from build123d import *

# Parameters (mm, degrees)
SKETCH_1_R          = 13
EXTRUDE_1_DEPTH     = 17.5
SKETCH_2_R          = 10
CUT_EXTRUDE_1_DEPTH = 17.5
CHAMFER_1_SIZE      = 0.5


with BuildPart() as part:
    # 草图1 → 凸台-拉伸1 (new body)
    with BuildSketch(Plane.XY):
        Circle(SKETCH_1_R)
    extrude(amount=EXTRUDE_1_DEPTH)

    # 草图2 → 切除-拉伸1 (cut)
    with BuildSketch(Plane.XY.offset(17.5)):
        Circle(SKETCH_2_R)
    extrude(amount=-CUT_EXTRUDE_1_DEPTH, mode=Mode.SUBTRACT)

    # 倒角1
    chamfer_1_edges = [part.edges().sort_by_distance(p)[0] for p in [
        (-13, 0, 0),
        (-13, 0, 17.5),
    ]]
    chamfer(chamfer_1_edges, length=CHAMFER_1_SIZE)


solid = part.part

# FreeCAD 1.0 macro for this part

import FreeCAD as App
import Part
import Sketcher

V = App.Vector


def edges_at(feature, points):
    """Names of the edges that pass closest to the given points."""
    edges = feature.Shape.Edges
    near = lambda p: min(range(len(edges)), key=lambda i: edges[i].distToShape(Part.Vertex(*p))[0])
    return sorted({f"Edge{near(p) + 1}" for p in points})

doc = App.newDocument("Part")
params = doc.addObject("Spreadsheet::Sheet", "Params")
for row, (alias, value) in enumerate([
    ("sketch1_diameter", "26 mm"),
    ("pad1_length", "17.5 mm"),
    ("sketch2_diameter", "20 mm"),
    ("pocket1_length", "17.5 mm"),
    ("chamfer_size", "0.5 mm"),
], start=1):
    params.set(f"A{row}", alias)
    params.set(f"B{row}", "=" + value)
    params.setAlias(f"B{row}", alias)

body = doc.addObject("PartDesign::Body", "Body")

sketch1 = body.newObject("Sketcher::SketchObject", "Sketch")
sketch1.AttachmentSupport = (doc.getObject("XY_Plane"), [""])
sketch1.MapMode = "FlatFace"
sketch1.addGeometry(Part.Circle(V(0, 0, 0), V(0, 0, 1), 13), False)
sketch1.addConstraint([
    Sketcher.Constraint("Coincident", 0, 3, -1, 1),
    Sketcher.Constraint("Diameter", 0, 26.0),
])
sketch1.setExpression("Constraints[1]", "Params.sketch1_diameter")
pad1 = body.newObject("PartDesign::Pad", "Pad")
pad1.Profile = sketch1
pad1.setExpression("Length", "Params.pad1_length")

sketch2 = body.newObject("Sketcher::SketchObject", "Sketch001")
sketch2.AttachmentSupport = (doc.getObject("XY_Plane"), [""])
sketch2.MapMode = "FlatFace"
sketch2.AttachmentOffset = App.Placement(V(0, 0, 17.5), App.Rotation())
sketch2.addGeometry(Part.Circle(V(0, 0, 0), V(0, 0, 1), 10), False)
sketch2.addConstraint([
    Sketcher.Constraint("Coincident", 0, 3, -1, 1),
    Sketcher.Constraint("Diameter", 0, 20.0),
])
sketch2.setExpression("Constraints[1]", "Params.sketch2_diameter")
pocket1 = body.newObject("PartDesign::Pocket", "Pocket")
pocket1.Profile = sketch2
pocket1.setExpression("Length", "Params.pocket1_length")
doc.recompute()

chamfer = body.newObject("PartDesign::Chamfer", "Chamfer")
chamfer.Base = (pocket1, edges_at(pocket1, [(-13, 0, 0), (-13, 0, 17.5)]))
chamfer.setExpression("Size", "Params.chamfer_size")

doc.recompute()
